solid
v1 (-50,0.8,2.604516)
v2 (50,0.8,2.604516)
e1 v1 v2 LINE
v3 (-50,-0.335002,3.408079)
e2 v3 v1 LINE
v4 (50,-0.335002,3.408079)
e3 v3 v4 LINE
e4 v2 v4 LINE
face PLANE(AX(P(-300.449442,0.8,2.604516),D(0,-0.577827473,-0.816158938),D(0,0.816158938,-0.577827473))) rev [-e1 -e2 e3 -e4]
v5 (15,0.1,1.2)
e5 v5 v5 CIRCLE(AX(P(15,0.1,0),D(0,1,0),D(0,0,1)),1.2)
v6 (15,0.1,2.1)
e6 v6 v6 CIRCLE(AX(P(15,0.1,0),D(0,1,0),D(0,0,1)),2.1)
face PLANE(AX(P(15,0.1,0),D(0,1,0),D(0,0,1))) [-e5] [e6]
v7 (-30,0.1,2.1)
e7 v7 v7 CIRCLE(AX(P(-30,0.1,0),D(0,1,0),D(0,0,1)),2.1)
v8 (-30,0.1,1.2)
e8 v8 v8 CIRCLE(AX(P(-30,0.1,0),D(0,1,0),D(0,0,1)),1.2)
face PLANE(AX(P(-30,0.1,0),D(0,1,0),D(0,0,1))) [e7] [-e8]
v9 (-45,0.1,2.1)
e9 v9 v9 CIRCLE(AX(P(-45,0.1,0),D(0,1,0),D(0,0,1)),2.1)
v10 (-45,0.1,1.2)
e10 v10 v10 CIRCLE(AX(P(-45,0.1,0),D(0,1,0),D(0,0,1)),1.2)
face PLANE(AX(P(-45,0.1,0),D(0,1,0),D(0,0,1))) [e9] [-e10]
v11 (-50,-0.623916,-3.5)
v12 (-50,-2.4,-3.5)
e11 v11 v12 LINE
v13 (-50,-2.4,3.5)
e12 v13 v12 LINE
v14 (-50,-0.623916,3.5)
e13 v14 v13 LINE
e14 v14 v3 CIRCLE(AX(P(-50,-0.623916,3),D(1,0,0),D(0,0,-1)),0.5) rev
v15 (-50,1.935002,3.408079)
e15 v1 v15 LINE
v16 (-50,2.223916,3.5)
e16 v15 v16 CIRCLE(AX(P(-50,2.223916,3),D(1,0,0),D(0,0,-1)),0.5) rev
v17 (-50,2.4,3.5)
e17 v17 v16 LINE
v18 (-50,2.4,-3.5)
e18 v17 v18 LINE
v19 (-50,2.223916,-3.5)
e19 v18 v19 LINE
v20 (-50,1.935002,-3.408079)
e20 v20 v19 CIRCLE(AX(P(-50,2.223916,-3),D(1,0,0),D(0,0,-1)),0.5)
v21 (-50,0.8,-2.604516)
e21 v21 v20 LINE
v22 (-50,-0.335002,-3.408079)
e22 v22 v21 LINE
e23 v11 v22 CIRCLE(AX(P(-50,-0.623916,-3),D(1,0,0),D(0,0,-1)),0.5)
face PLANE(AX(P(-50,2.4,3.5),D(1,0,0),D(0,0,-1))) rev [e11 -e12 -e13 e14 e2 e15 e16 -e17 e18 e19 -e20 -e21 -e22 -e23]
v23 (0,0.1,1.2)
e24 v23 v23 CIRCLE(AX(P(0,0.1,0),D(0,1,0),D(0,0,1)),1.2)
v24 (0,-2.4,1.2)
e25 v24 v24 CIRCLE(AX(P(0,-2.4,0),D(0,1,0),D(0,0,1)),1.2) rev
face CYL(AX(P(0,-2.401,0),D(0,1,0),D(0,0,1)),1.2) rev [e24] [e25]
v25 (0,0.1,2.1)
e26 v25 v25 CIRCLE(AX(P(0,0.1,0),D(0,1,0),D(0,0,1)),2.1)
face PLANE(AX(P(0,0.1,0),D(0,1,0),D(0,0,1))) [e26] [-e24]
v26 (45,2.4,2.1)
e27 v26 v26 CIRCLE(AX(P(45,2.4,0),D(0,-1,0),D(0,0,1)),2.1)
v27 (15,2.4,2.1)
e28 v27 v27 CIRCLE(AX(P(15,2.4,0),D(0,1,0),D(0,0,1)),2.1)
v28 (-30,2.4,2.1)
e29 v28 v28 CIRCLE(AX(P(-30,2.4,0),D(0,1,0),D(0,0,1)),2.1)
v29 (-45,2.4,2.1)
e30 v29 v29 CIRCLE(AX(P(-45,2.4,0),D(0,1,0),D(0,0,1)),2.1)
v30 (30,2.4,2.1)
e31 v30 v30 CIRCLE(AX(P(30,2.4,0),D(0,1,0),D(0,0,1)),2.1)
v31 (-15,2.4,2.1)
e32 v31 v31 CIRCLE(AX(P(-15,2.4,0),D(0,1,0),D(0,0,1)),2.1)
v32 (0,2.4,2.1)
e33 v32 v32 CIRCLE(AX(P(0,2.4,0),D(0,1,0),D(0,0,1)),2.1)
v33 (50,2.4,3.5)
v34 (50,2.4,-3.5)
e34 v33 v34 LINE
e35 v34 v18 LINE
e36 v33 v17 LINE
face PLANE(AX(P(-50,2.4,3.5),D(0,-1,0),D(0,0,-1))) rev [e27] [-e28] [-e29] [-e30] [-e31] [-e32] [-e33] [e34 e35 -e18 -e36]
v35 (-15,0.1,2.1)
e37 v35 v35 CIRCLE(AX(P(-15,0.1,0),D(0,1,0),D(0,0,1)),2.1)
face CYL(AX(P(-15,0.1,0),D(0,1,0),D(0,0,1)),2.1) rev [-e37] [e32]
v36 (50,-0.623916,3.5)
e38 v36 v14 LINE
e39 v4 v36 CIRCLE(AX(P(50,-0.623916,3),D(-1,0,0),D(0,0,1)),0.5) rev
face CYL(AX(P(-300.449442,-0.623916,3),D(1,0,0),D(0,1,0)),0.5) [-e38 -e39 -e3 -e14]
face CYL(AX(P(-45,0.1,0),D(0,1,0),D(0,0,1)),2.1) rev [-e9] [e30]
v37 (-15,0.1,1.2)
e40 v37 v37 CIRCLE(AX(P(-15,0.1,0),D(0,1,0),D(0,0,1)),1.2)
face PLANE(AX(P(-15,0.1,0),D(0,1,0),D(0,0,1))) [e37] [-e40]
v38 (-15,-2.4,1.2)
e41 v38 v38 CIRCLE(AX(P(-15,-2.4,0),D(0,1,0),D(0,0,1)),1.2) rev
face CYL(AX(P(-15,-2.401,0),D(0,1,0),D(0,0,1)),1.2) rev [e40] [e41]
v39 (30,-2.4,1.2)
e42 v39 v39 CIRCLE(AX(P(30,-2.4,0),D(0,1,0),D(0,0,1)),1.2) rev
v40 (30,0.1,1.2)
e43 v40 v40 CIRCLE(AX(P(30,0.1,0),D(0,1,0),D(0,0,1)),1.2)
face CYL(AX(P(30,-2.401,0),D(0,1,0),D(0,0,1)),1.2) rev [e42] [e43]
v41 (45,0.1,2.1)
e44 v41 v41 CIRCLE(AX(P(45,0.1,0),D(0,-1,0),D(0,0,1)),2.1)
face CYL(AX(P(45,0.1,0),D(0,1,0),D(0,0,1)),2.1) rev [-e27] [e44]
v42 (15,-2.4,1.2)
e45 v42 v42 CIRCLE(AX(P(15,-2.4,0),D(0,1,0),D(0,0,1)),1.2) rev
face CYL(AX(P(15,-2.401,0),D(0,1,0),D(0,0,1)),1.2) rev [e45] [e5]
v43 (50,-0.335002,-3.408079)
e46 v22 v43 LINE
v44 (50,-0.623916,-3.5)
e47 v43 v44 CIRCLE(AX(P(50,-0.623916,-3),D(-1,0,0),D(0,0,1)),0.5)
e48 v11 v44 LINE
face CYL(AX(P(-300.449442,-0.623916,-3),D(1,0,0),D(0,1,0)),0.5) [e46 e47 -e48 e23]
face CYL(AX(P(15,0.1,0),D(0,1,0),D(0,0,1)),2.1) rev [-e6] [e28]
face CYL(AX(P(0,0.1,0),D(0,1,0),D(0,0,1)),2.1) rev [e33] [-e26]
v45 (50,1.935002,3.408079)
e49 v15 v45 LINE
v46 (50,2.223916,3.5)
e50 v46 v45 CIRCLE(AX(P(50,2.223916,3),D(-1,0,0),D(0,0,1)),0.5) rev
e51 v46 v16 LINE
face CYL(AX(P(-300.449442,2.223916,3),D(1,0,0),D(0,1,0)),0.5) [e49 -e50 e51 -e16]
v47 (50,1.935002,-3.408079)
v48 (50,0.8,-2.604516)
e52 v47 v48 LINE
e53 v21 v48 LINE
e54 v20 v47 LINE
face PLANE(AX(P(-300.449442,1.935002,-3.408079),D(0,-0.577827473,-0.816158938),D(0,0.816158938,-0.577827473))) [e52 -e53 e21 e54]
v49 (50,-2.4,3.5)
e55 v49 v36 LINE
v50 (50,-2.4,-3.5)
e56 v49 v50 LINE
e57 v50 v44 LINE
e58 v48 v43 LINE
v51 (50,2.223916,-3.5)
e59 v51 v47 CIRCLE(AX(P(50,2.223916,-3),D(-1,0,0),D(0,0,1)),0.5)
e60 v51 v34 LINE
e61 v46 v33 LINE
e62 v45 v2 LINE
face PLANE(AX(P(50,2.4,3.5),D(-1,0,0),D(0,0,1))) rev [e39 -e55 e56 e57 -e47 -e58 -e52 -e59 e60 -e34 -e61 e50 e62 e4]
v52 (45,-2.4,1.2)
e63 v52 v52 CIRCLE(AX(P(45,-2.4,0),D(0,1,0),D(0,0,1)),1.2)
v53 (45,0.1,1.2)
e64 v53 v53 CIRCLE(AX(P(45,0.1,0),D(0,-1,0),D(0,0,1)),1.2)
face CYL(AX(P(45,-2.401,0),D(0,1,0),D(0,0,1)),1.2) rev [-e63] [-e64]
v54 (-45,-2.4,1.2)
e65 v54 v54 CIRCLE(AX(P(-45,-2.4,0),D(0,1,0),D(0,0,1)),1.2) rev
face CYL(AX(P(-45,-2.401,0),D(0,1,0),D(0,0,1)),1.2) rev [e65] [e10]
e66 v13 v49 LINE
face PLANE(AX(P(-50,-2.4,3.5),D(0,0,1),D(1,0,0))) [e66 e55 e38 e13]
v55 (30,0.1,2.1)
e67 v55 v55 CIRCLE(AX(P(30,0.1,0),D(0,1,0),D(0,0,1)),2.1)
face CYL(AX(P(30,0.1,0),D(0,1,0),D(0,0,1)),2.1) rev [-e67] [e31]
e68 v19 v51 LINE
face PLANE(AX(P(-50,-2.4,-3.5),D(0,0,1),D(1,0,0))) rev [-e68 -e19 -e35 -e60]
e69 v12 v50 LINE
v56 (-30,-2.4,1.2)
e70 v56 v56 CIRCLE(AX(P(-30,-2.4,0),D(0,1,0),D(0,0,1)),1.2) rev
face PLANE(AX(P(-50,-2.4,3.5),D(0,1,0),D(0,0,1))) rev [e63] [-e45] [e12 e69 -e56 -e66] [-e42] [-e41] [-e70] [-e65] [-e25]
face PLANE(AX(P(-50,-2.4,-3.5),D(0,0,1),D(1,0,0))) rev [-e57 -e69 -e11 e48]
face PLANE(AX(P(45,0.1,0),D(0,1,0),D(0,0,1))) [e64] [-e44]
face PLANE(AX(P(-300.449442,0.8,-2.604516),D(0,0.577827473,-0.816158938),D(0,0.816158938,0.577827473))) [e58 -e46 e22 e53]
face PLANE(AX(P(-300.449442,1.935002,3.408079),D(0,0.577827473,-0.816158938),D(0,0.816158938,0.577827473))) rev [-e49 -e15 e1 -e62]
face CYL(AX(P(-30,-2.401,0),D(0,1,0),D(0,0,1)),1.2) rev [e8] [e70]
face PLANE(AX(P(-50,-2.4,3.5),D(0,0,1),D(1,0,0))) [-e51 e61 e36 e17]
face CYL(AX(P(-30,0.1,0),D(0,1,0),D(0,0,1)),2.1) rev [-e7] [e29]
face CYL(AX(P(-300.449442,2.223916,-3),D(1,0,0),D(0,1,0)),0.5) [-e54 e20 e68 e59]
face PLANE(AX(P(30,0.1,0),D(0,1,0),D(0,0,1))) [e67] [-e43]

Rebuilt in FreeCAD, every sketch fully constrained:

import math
import FreeCAD as App
import Part
import Sketcher

V = App.Vector
Q = App.Units.Quantity


def add_polygon(sketch, points):
    """Adds a closed chain of lines whose ends are joined by coincident constraints."""
    first, n = sketch.GeometryCount, len(points)
    for a, b in zip(points, points[1:] + points[:1]):
        sketch.addGeometry(Part.LineSegment(App.Vector(*a, 0), App.Vector(*b, 0)), False)
    for i in range(n):
        sketch.addConstraint(Sketcher.Constraint("Coincident", first + i, 2, first + (i + 1) % n, 1))

doc = App.newDocument("Part")
body = doc.addObject("PartDesign::Body", "Body")

sketch1 = body.newObject("Sketcher::SketchObject", "Sketch")
sketch1.AttachmentSupport = (doc.getObject("XY_Plane"), [""])
sketch1.MapMode = "FlatFace"
add_polygon(sketch1, [(-50, 2.4), (-50, -2.4), (50, -2.4), (50, 2.4)])
sketch1.addConstraint([
    Sketcher.Constraint("Vertical", 0),
    Sketcher.Constraint("Horizontal", 1),
    Sketcher.Constraint("Vertical", 2),
    Sketcher.Constraint("Horizontal", 3),
    Sketcher.Constraint("Symmetric", 0, 2, 2, 2, -1, 1),
    Sketcher.Constraint("DistanceX", 1, 1, 1, 2, Q("100 mm")),
    Sketcher.Constraint("DistanceY", 0, 2, 0, 1, Q("4.8 mm")),
])
pad1 = body.newObject("PartDesign::Pad", "Pad")
pad1.Profile = sketch1
pad1.Length = 7
pad1.Midplane = True

sketch2 = body.newObject("Sketcher::SketchObject", "Sketch001")
sketch2.AttachmentSupport = (doc.getObject("XZ_Plane"), [""])
sketch2.MapMode = "FlatFace"
sketch2.AttachmentOffset = App.Placement(V(0, 0, -2.4), App.Rotation())
sketch2.addGeometry(Part.Circle(V(-45, 0, 0), V(0, 0, 1), 2.1), False)
sketch2.addConstraint([
    Sketcher.Constraint("PointOnObject", 0, 3, -1),
    Sketcher.Constraint("Diameter", 0, Q("4.2 mm")),
    Sketcher.Constraint("DistanceX", 0, 3, -1, 1, Q("45 mm")),
])
pocket1 = body.newObject("PartDesign::Pocket", "Pocket")
pocket1.Profile = sketch2
pocket1.Length = 2.3
pocket1.Reversed = True

sketch3 = body.newObject("Sketcher::SketchObject", "Sketch002")
sketch3.AttachmentSupport = (doc.getObject("XZ_Plane"), [""])
sketch3.MapMode = "FlatFace"
sketch3.AttachmentOffset = App.Placement(V(0, 0, -0.1), App.Rotation())
sketch3.addGeometry(Part.Circle(V(-45, 0, 0), V(0, 0, 1), 1.2), False)
sketch3.addConstraint([
    Sketcher.Constraint("PointOnObject", 0, 3, -1),
    Sketcher.Constraint("Diameter", 0, Q("2.4 mm")),
    Sketcher.Constraint("DistanceX", 0, 3, -1, 1, Q("45 mm")),
])
pocket2 = body.newObject("PartDesign::Pocket", "Pocket001")
pocket2.Profile = sketch3
pocket2.Length = 2.5
pocket2.Reversed = True
doc.recompute()

mirrored = body.newObject("PartDesign::Mirrored", "Mirrored")
mirrored.Originals = [pocket1, pocket2]
mirrored.MirrorPlane = (doc.getObject("YZ_Plane"), [""])
body.Tip = mirrored

sketch4 = body.newObject("Sketcher::SketchObject", "Sketch003")
sketch4.AttachmentSupport = (doc.getObject("YZ_Plane"), [""])
sketch4.MapMode = "FlatFace"
sketch4.AttachmentOffset = App.Placement(V(0, 0, 51), App.Rotation())
sketch4.addGeometry([
    Part.LineSegment(V(29.38, 3.5, 0), V(2.22, 3.5, 0)),
    Part.ArcOfCircle(Part.Circle(V(2.22, 3, 0), V(0, 0, 1), 0.5), math.radians(90), math.radians(125)),
    Part.LineSegment(V(1.94, 3.41, 0), V(0.8, 2.6, 0)),
    Part.LineSegment(V(0.8, 2.6, 0), V(-0.34, 3.41, 0)),
    Part.ArcOfCircle(Part.Circle(V(-0.62, 3, 0), V(0, 0, 1), 0.5), math.radians(55), math.radians(90)),
    Part.LineSegment(V(-0.62, 3.5, 0), V(-27.6, 3.5, 0)),
    Part.LineSegment(V(-27.6, 3.5, 0), V(-27.6, 57.45, 0)),
    Part.LineSegment(V(-27.6, 57.45, 0), V(29.38, 57.45, 0)),
    Part.LineSegment(V(29.38, 57.45, 0), V(29.38, 3.5, 0)),
], False)
sketch4.addConstraint([
    Sketcher.Constraint("Tangent", 0, 2, 1, 1),
    Sketcher.Constraint("Tangent", 1, 2, 2, 1),
    Sketcher.Constraint("Coincident", 2, 2, 3, 1),
    Sketcher.Constraint("Tangent", 3, 2, 4, 1),
    Sketcher.Constraint("Tangent", 4, 2, 5, 1),
    Sketcher.Constraint("Coincident", 5, 2, 6, 1),
    Sketcher.Constraint("Coincident", 6, 2, 7, 1),
    Sketcher.Constraint("Coincident", 7, 2, 8, 1),
    Sketcher.Constraint("Coincident", 8, 2, 0, 1),
    Sketcher.Constraint("Horizontal", 0),
    Sketcher.Constraint("Horizontal", 5),
    Sketcher.Constraint("Vertical", 6),
    Sketcher.Constraint("Horizontal", 7),
    Sketcher.Constraint("Vertical", 8),
    Sketcher.Constraint("Equal", 1, 4),
    Sketcher.Constraint("Horizontal", 1, 3, 4, 3),
    Sketcher.Constraint("Horizontal", 1, 2, 3, 2),
    Sketcher.Constraint("Radius", 1, Q("0.5 mm")),
    Sketcher.Constraint("DistanceY", -1, 1, 1, 3, Q("3 mm")),
    Sketcher.Constraint("DistanceX", -1, 1, 2, 2, Q("0.8 mm")),
    Sketcher.Constraint("DistanceX", -1, 1, 1, 2, Q("1.935002 mm")),
    Sketcher.Constraint("DistanceX", 0, 2, 0, 1, Q("27.15136 mm")),
    Sketcher.Constraint("DistanceX", 5, 2, 5, 1, Q("26.975276 mm")),
    Sketcher.Constraint("DistanceX", 7, 1, 7, 2, Q("56.974468 mm")),
    Sketcher.Constraint("DistanceY", 6, 1, 6, 2, Q("53.950552 mm")),
])
pocket3 = body.newObject("PartDesign::Pocket", "Pocket002")
pocket3.Profile = sketch4
pocket3.Length = 102
doc.recompute()

mirrored2 = body.newObject("PartDesign::Mirrored", "Mirrored001")
mirrored2.Originals = [pocket3]
mirrored2.MirrorPlane = (doc.getObject("XY_Plane"), [""])
body.Tip = mirrored2
doc.recompute()

linearpattern = body.newObject("PartDesign::LinearPattern", "LinearPattern")
linearpattern.Originals = [pocket1, pocket2]
linearpattern.Direction = (doc.getObject("X_Axis"), [""])
linearpattern.Mode = "offset"
linearpattern.Offset = 15
linearpattern.Occurrences = 6
body.Tip = linearpattern

doc.recompute()
